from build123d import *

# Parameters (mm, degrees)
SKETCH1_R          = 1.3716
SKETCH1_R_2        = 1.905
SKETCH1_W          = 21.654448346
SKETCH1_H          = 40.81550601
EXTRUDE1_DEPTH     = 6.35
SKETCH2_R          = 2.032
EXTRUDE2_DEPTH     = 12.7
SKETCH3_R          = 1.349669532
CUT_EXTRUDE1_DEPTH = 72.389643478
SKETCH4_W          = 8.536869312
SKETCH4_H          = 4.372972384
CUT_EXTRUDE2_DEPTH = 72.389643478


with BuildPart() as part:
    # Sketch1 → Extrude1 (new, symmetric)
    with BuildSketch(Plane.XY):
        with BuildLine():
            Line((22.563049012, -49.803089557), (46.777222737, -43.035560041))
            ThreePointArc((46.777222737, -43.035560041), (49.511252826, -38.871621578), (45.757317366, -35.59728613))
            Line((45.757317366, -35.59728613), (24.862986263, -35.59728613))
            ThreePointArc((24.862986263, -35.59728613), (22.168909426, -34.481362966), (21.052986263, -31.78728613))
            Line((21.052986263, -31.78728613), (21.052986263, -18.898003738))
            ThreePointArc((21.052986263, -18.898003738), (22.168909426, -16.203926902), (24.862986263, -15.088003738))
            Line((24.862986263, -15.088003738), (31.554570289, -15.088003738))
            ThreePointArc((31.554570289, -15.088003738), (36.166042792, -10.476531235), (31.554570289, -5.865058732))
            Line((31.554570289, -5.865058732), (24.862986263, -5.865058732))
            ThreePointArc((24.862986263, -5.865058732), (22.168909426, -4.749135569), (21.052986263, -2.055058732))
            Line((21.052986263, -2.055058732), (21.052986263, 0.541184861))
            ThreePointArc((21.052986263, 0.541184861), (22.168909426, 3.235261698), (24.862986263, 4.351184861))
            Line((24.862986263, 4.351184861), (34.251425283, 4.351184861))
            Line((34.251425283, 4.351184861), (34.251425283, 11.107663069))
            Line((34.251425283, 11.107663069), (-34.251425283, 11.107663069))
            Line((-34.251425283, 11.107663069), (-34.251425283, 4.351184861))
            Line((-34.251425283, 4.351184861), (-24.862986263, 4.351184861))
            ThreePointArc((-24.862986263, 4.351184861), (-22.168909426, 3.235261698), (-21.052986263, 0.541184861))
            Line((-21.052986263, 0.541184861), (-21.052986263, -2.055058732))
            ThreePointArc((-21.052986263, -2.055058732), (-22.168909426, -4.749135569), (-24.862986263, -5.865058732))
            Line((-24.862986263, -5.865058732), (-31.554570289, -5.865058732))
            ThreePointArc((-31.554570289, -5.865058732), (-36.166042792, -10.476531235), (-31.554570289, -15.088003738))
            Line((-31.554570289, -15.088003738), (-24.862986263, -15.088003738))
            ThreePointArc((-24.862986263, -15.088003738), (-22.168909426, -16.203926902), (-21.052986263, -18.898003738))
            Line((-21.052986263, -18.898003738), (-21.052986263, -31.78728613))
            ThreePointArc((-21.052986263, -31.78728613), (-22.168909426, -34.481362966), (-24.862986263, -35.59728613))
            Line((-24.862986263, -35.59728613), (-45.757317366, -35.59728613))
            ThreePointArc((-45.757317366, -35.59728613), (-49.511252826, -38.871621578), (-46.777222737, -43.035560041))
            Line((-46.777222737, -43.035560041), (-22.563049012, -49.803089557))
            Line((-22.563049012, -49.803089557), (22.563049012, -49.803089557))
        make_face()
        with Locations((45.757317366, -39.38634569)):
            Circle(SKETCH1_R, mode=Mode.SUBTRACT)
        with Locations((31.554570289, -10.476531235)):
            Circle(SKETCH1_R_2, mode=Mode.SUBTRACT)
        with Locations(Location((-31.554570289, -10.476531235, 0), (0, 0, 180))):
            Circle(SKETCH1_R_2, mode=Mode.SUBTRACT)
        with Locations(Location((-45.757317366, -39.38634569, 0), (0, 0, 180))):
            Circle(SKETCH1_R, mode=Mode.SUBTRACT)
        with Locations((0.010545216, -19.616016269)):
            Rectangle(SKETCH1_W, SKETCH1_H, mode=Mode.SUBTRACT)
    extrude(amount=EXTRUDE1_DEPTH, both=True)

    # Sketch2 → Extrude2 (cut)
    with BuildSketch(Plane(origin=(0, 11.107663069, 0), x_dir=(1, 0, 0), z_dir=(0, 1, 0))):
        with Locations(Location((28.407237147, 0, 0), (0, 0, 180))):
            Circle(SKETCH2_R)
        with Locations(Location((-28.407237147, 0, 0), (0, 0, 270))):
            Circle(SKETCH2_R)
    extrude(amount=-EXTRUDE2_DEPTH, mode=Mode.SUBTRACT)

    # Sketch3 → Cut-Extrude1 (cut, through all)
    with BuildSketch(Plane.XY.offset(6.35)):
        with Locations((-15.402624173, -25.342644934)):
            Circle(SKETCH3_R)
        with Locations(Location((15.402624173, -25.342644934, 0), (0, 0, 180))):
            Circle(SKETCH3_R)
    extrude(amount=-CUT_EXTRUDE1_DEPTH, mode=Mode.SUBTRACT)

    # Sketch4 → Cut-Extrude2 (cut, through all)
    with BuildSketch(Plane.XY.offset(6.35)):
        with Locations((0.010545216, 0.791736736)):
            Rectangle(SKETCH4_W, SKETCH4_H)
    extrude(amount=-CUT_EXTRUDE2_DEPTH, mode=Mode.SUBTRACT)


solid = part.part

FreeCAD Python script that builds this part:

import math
import FreeCAD as App
import Part
import Sketcher
Q = App.Units.Quantity


def add_polygon(sketch, points):
    """Adds a closed chain of lines whose ends are joined by coincident constraints."""
    first, n = sketch.GeometryCount, len(points)
    for a, b in zip(points, points[1:] + points[:1]):
        sketch.addGeometry(Part.LineSegment(App.Vector(*a, 0), App.Vector(*b, 0)), False)
    for i in range(n):
        sketch.addConstraint(Sketcher.Constraint("Coincident", first + i, 2, first + (i + 1) % n, 1))

doc = App.newDocument("Part")
params = doc.addObject("Spreadsheet::Sheet", "Params")
for row, (alias, value) in enumerate([
    ("sketch1_diameter", "0.15 in"),
    ("sketch1_radius", "0.15 in"),
    ("sketch1_diameter2", "0.108 in"),
    ("pad1_length", "0.5 in"),
    ("sketch2_diameter", "0.16 in"),
    ("pocket1_length", "0.5 in"),
], start=1):
    params.set(f"A{row}", alias)
    params.set(f"B{row}", "=" + value)
    params.setAlias(f"B{row}", alias)

body = doc.addObject("PartDesign::Body", "Body")

# Sketch on XY plane
sketch1 = body.newObject("Sketcher::SketchObject", "Sketch")
sketch1.AttachmentSupport = (doc.getObject("XY_Plane"), [""])
sketch1.MapMode = "FlatFace"
sketch1.addGeometry(Part.LineSegment(App.Vector(22.6, -49.8, 0), App.Vector(46.8, -43, 0)), False)  # 0
sketch1.addGeometry(Part.ArcOfCircle(Part.Circle(App.Vector(45.8, -39.4, 0), App.Vector(0, 0, 1), 3.8), math.radians(-74), math.radians(90)), False)  # 1
sketch1.addGeometry(Part.LineSegment(App.Vector(45.8, -35.6, 0), App.Vector(24.9, -35.6, 0)), False)  # 2
sketch1.addGeometry(Part.ArcOfCircle(Part.Circle(App.Vector(24.9, -31.8, 0), App.Vector(0, 0, 1), 3.8), math.radians(180), math.radians(270)), False)  # 3
sketch1.addGeometry(Part.LineSegment(App.Vector(21.1, -31.8, 0), App.Vector(21.1, -18.9, 0)), False)  # 4
sketch1.addGeometry(Part.ArcOfCircle(Part.Circle(App.Vector(24.9, -18.9, 0), App.Vector(0, 0, 1), 3.8), math.radians(90), math.radians(180)), False)  # 5
sketch1.addGeometry(Part.LineSegment(App.Vector(24.9, -15.1, 0), App.Vector(31.6, -15.1, 0)), False)  # 6
sketch1.addGeometry(Part.ArcOfCircle(Part.Circle(App.Vector(31.6, -10.5, 0), App.Vector(0, 0, 1), 4.6), math.radians(-90), math.radians(90)), False)  # 7
sketch1.addGeometry(Part.LineSegment(App.Vector(31.6, -5.9, 0), App.Vector(24.9, -5.9, 0)), False)  # 8
sketch1.addGeometry(Part.ArcOfCircle(Part.Circle(App.Vector(24.9, -2.1, 0), App.Vector(0, 0, 1), 3.8), math.radians(180), math.radians(270)), False)  # 9
sketch1.addGeometry(Part.LineSegment(App.Vector(21.1, -2.1, 0), App.Vector(21.1, 0.5, 0)), False)  # 10
sketch1.addGeometry(Part.ArcOfCircle(Part.Circle(App.Vector(24.9, 0.5, 0), App.Vector(0, 0, 1), 3.8), math.radians(90), math.radians(180)), False)  # 11
sketch1.addGeometry(Part.LineSegment(App.Vector(24.9, 4.4, 0), App.Vector(34.3, 4.4, 0)), False)  # 12
sketch1.addGeometry(Part.LineSegment(App.Vector(34.3, 4.4, 0), App.Vector(34.3, 11.1, 0)), False)  # 13
sketch1.addGeometry(Part.LineSegment(App.Vector(34.3, 11.1, 0), App.Vector(-34.3, 11.1, 0)), False)  # 14
sketch1.addGeometry(Part.LineSegment(App.Vector(-34.3, 11.1, 0), App.Vector(-34.3, 4.4, 0)), False)  # 15
sketch1.addGeometry(Part.LineSegment(App.Vector(-34.3, 4.4, 0), App.Vector(-24.9, 4.4, 0)), False)  # 16
sketch1.addGeometry(Part.ArcOfCircle(Part.Circle(App.Vector(-24.9, 0.5, 0), App.Vector(0, 0, 1), 3.8), math.radians(0), math.radians(90)), False)  # 17
sketch1.addGeometry(Part.LineSegment(App.Vector(-21.1, 0.5, 0), App.Vector(-21.1, -2.1, 0)), False)  # 18
sketch1.addGeometry(Part.ArcOfCircle(Part.Circle(App.Vector(-24.9, -2.1, 0), App.Vector(0, 0, 1), 3.8), math.radians(-90), math.radians(0)), False)  # 19
sketch1.addGeometry(Part.LineSegment(App.Vector(-24.9, -5.9, 0), App.Vector(-31.6, -5.9, 0)), False)  # 20
sketch1.addGeometry(Part.ArcOfCircle(Part.Circle(App.Vector(-31.6, -10.5, 0), App.Vector(0, 0, 1), 4.6), math.radians(90), math.radians(270)), False)  # 21
sketch1.addGeometry(Part.LineSegment(App.Vector(-31.6, -15.1, 0), App.Vector(-24.9, -15.1, 0)), False)  # 22
sketch1.addGeometry(Part.ArcOfCircle(Part.Circle(App.Vector(-24.9, -18.9, 0), App.Vector(0, 0, 1), 3.8), math.radians(0), math.radians(90)), False)  # 23
sketch1.addGeometry(Part.LineSegment(App.Vector(-21.1, -18.9, 0), App.Vector(-21.1, -31.8, 0)), False)  # 24
sketch1.addGeometry(Part.ArcOfCircle(Part.Circle(App.Vector(-24.9, -31.8, 0), App.Vector(0, 0, 1), 3.8), math.radians(-90), math.radians(0)), False)  # 25
sketch1.addGeometry(Part.LineSegment(App.Vector(-24.9, -35.6, 0), App.Vector(-45.8, -35.6, 0)), False)  # 26
sketch1.addGeometry(Part.ArcOfCircle(Part.Circle(App.Vector(-45.8, -39.4, 0), App.Vector(0, 0, 1), 3.8), math.radians(90), math.radians(254)), False)  # 27
sketch1.addGeometry(Part.LineSegment(App.Vector(-46.8, -43, 0), App.Vector(-22.6, -49.8, 0)), False)  # 28
sketch1.addGeometry(Part.LineSegment(App.Vector(-22.6, -49.8, 0), App.Vector(22.6, -49.8, 0)), False)  # 29
sketch1.addGeometry(Part.Circle(App.Vector(-45.8, -39.4, 0), App.Vector(0, 0, 1), 1.4), False)  # 30
sketch1.addGeometry(Part.Circle(App.Vector(45.8, -39.4, 0), App.Vector(0, 0, 1), 1.4), False)  # 31
sketch1.addGeometry(Part.Circle(App.Vector(-31.6, -10.5, 0), App.Vector(0, 0, 1), 1.9), False)  # 32
add_polygon(sketch1, [(10.8, -40), (-10.8, -40), (-10.8, 0.8), (10.8, 0.8)])  # lines 33-36
sketch1.addGeometry(Part.Circle(App.Vector(31.6, -10.5, 0), App.Vector(0, 0, 1), 1.9), False)  # 37
sketch1.addConstraint(Sketcher.Constraint("Tangent", 0, 2, 1, 1))
sketch1.addConstraint(Sketcher.Constraint("Tangent", 1, 2, 2, 1))
sketch1.addConstraint(Sketcher.Constraint("Tangent", 2, 2, 3, 2))
sketch1.addConstraint(Sketcher.Constraint("Tangent", 3, 1, 4, 1))
sketch1.addConstraint(Sketcher.Constraint("Tangent", 4, 2, 5, 2))
sketch1.addConstraint(Sketcher.Constraint("Tangent", 5, 1, 6, 1))
sketch1.addConstraint(Sketcher.Constraint("Tangent", 6, 2, 7, 1))
sketch1.addConstraint(Sketcher.Constraint("Tangent", 7, 2, 8, 1))
sketch1.addConstraint(Sketcher.Constraint("Tangent", 8, 2, 9, 2))
sketch1.addConstraint(Sketcher.Constraint("Tangent", 9, 1, 10, 1))
sketch1.addConstraint(Sketcher.Constraint("Tangent", 10, 2, 11, 2))
sketch1.addConstraint(Sketcher.Constraint("Tangent", 11, 1, 12, 1))
sketch1.addConstraint(Sketcher.Constraint("Coincident", 12, 2, 13, 1))
sketch1.addConstraint(Sketcher.Constraint("Coincident", 13, 2, 14, 1))
sketch1.addConstraint(Sketcher.Constraint("Coincident", 14, 2, 15, 1))
sketch1.addConstraint(Sketcher.Constraint("Coincident", 15, 2, 16, 1))
sketch1.addConstraint(Sketcher.Constraint("Tangent", 16, 2, 17, 2))
sketch1.addConstraint(Sketcher.Constraint("Tangent", 17, 1, 18, 1))
sketch1.addConstraint(Sketcher.Constraint("Tangent", 18, 2, 19, 2))
sketch1.addConstraint(Sketcher.Constraint("Tangent", 19, 1, 20, 1))
sketch1.addConstraint(Sketcher.Constraint("Tangent", 20, 2, 21, 1))
sketch1.addConstraint(Sketcher.Constraint("Tangent", 21, 2, 22, 1))
sketch1.addConstraint(Sketcher.Constraint("Tangent", 22, 2, 23, 2))
sketch1.addConstraint(Sketcher.Constraint("Tangent", 23, 1, 24, 1))
sketch1.addConstraint(Sketcher.Constraint("Tangent", 24, 2, 25, 2))
sketch1.addConstraint(Sketcher.Constraint("Tangent", 25, 1, 26, 1))
sketch1.addConstraint(Sketcher.Constraint("Tangent", 26, 2, 27, 1))
sketch1.addConstraint(Sketcher.Constraint("Tangent", 27, 2, 28, 1))
sketch1.addConstraint(Sketcher.Constraint("Coincident", 28, 2, 29, 1))
sketch1.addConstraint(Sketcher.Constraint("Coincident", 29, 2, 0, 1))
sketch1.addConstraint(Sketcher.Constraint("Horizontal", 2))
sketch1.addConstraint(Sketcher.Constraint("Vertical", 4))
sketch1.addConstraint(Sketcher.Constraint("Horizontal", 6))
sketch1.addConstraint(Sketcher.Constraint("Horizontal", 8))
sketch1.addConstraint(Sketcher.Constraint("Vertical", 10))
sketch1.addConstraint(Sketcher.Constraint("Horizontal", 12))
sketch1.addConstraint(Sketcher.Constraint("Vertical", 13))
sketch1.addConstraint(Sketcher.Constraint("Horizontal", 14))
sketch1.addConstraint(Sketcher.Constraint("Vertical", 15))
sketch1.addConstraint(Sketcher.Constraint("Horizontal", 16))
sketch1.addConstraint(Sketcher.Constraint("Vertical", 18))
sketch1.addConstraint(Sketcher.Constraint("Horizontal", 20))
sketch1.addConstraint(Sketcher.Constraint("Horizontal", 22))
sketch1.addConstraint(Sketcher.Constraint("Vertical", 24))
sketch1.addConstraint(Sketcher.Constraint("Horizontal", 26))
sketch1.addConstraint(Sketcher.Constraint("Horizontal", 29))
sketch1.addConstraint(Sketcher.Constraint("Horizontal", 33))
sketch1.addConstraint(Sketcher.Constraint("Vertical", 34))
sketch1.addConstraint(Sketcher.Constraint("Horizontal", 35))
sketch1.addConstraint(Sketcher.Constraint("Vertical", 36))
sketch1.addConstraint(Sketcher.Constraint("Coincident", 30, 3, 27, 3))
sketch1.addConstraint(Sketcher.Constraint("Coincident", 31, 3, 1, 3))
sketch1.addConstraint(Sketcher.Constraint("Coincident", 32, 3, 21, 3))
sketch1.addConstraint(Sketcher.Constraint("Coincident", 37, 3, 7, 3))
sketch1.addConstraint(Sketcher.Constraint("Equal", 3, 5))
sketch1.addConstraint(Sketcher.Constraint("Equal", 5, 9))
sketch1.addConstraint(Sketcher.Constraint("Equal", 9, 11))
sketch1.addConstraint(Sketcher.Constraint("Equal", 11, 17))
sketch1.addConstraint(Sketcher.Constraint("Equal", 17, 19))
sketch1.addConstraint(Sketcher.Constraint("Equal", 7, 21))
sketch1.addConstraint(Sketcher.Constraint("Equal", 19, 23))
sketch1.addConstraint(Sketcher.Constraint("Equal", 23, 25))
sketch1.addConstraint(Sketcher.Constraint("Equal", 1, 27))
sketch1.addConstraint(Sketcher.Constraint("Equal", 30, 31))
sketch1.addConstraint(Sketcher.Constraint("Equal", 32, 37))
sketch1.addConstraint(Sketcher.Constraint("Symmetric", 11, 3, 17, 3, -2))
sketch1.addConstraint(Sketcher.Constraint("Symmetric", 7, 3, 21, 3, -2))
sketch1.addConstraint(Sketcher.Constraint("Symmetric", 3, 3, 25, 3, -2))
sketch1.addConstraint(Sketcher.Constraint("Symmetric", 0, 2, 27, 2, -2))
sketch1.addConstraint(Sketcher.Constraint("Vertical", 5, 3, 9, 3))
sketch1.addConstraint(Sketcher.Constraint("Equal", 12, 16))
sketch1.addConstraint(Sketcher.Constraint("Diameter", 32, Q("0.15 in")))
sketch1.addConstraint(Sketcher.Constraint("Radius", 3, Q("0.15 in")))
sketch1.addConstraint(Sketcher.Constraint("Diameter", 30, Q("0.108 in")))
sketch1.addConstraint(Sketcher.Constraint("Radius", 1, 3.78906))
sketch1.addConstraint(Sketcher.Constraint("DistanceX", 29, 1, 29, 2, 45.126098))
sketch1.addConstraint(Sketcher.Constraint("Radius", 7, 4.611473))
sketch1.addConstraint(Sketcher.Constraint("DistanceX", 2, 2, 2, 1, 20.894331))
sketch1.addConstraint(Sketcher.Constraint("DistanceX", 12, 1, 12, 2, 9.388439))
sketch1.addConstraint(Sketcher.Constraint("DistanceX", 14, 2, 14, 1, 68.502851))
sketch1.addConstraint(Sketcher.Constraint("DistanceX", 33, 2, 33, 1, 21.654448))
sketch1.addConstraint(Sketcher.Constraint("DistanceY", 13, 1, 13, 2, 6.756478))
sketch1.addConstraint(Sketcher.Constraint("Distance", 0, 25.142109))
sketch1.addConstraint(Sketcher.Constraint("DistanceX", 6, 1, 6, 2, 6.691584))
sketch1.addConstraint(Sketcher.Constraint("DistanceY", 4, 1, 4, 2, 12.889282))
sketch1.addConstraint(Sketcher.Constraint("DistanceY", 10, 1, 10, 2, 2.596244))
sketch1.addConstraint(Sketcher.Constraint("DistanceY", 34, 1, 34, 2, 40.815506))
sketch1.addConstraint(Sketcher.Constraint("DistanceY", 7, 3, -1, 1, 10.476531))
sketch1.addConstraint(Sketcher.Constraint("DistanceX", 33, 2, -1, 1, 10.816679))
sketch1.addConstraint(Sketcher.Constraint("DistanceY", 33, 2, -1, 1, 40.023769))
sketch1.setExpression("Constraints[75]", "Params.sketch1_diameter")
sketch1.setExpression("Constraints[76]", "Params.sketch1_radius")
sketch1.setExpression("Constraints[77]", "Params.sketch1_diameter2")
pad1 = body.newObject("PartDesign::Pad", "Pad")
pad1.Profile = sketch1
pad1.setExpression("Length", "Params.pad1_length")
pad1.Midplane = True

# Sketch on XZ plane
sketch2 = body.newObject("Sketcher::SketchObject", "Sketch001")
sketch2.AttachmentSupport = (doc.getObject("XZ_Plane"), [""])
sketch2.MapMode = "FlatFace"
sketch2.AttachmentOffset = App.Placement(App.Vector(0, 0, -11.107663), App.Rotation())
sketch2.addGeometry(Part.Circle(App.Vector(28.4, 0, 0), App.Vector(0, 0, 1), 2), False)
sketch2.addGeometry(Part.Circle(App.Vector(-28.4, 0, 0), App.Vector(0, 0, 1), 2), False)
sketch2.addConstraint(Sketcher.Constraint("Equal", 0, 1))
sketch2.addConstraint(Sketcher.Constraint("Symmetric", 0, 3, 1, 3, -1, 1))
sketch2.addConstraint(Sketcher.Constraint("PointOnObject", 0, 3, -1))
sketch2.addConstraint(Sketcher.Constraint("Diameter", 0, Q("0.16 in")))
sketch2.addConstraint(Sketcher.Constraint("DistanceX", -1, 1, 0, 3, 28.407237))
sketch2.setExpression("Constraints[3]", "Params.sketch2_diameter")
pocket1 = body.newObject("PartDesign::Pocket", "Pocket")
pocket1.Profile = sketch2
pocket1.setExpression("Length", "Params.pocket1_length")
pocket1.Reversed = True

# Sketch on XY plane
sketch3 = body.newObject("Sketcher::SketchObject", "Sketch002")
sketch3.AttachmentSupport = (doc.getObject("XY_Plane"), [""])
sketch3.MapMode = "FlatFace"
sketch3.AttachmentOffset = App.Placement(App.Vector(0, 0, 0.25 * 25.4), App.Rotation())
sketch3.addGeometry(Part.Circle(App.Vector(-15.4, -25.3, 0), App.Vector(0, 0, 1), 1.3), False)
sketch3.addGeometry(Part.Circle(App.Vector(15.4, -25.3, 0), App.Vector(0, 0, 1), 1.3), False)
sketch3.addConstraint(Sketcher.Constraint("Equal", 0, 1))
sketch3.addConstraint(Sketcher.Constraint("Symmetric", 0, 3, 1, 3, -2))
sketch3.addConstraint(Sketcher.Constraint("Diameter", 0, 2.699339))
sketch3.addConstraint(Sketcher.Constraint("DistanceX", 0, 3, 1, 3, 30.805248))
sketch3.addConstraint(Sketcher.Constraint("DistanceY", 0, 3, -1, 1, 25.342645))
pocket2 = body.newObject("PartDesign::Pocket", "Pocket001")
pocket2.Profile = sketch3
pocket2.Type = "ThroughAll"

# Sketch on XY plane
sketch4 = body.newObject("Sketcher::SketchObject", "Sketch003")
sketch4.AttachmentSupport = (doc.getObject("XY_Plane"), [""])
sketch4.MapMode = "FlatFace"
sketch4.AttachmentOffset = App.Placement(App.Vector(0, 0, 0.25 * 25.4), App.Rotation())
add_polygon(sketch4, [(-4.3, 3), (-4.3, -1.4), (4.3, -1.4), (4.3, 3)])  # lines 0-3
sketch4.addConstraint(Sketcher.Constraint("Vertical", 0))
sketch4.addConstraint(Sketcher.Constraint("Horizontal", 1))
sketch4.addConstraint(Sketcher.Constraint("Vertical", 2))
sketch4.addConstraint(Sketcher.Constraint("Horizontal", 3))
sketch4.addConstraint(Sketcher.Constraint("DistanceX", 1, 1, 1, 2, 8.536869))
sketch4.addConstraint(Sketcher.Constraint("DistanceY", 0, 2, 0, 1, 4.372972))
sketch4.addConstraint(Sketcher.Constraint("DistanceX", 0, 2, -1, 1, 4.257889))
sketch4.addConstraint(Sketcher.Constraint("DistanceY", 0, 2, -1, 1, 1.394749))
pocket3 = body.newObject("PartDesign::Pocket", "Pocket002")
pocket3.Profile = sketch4
pocket3.Type = "ThroughAll"

doc.recompute()
